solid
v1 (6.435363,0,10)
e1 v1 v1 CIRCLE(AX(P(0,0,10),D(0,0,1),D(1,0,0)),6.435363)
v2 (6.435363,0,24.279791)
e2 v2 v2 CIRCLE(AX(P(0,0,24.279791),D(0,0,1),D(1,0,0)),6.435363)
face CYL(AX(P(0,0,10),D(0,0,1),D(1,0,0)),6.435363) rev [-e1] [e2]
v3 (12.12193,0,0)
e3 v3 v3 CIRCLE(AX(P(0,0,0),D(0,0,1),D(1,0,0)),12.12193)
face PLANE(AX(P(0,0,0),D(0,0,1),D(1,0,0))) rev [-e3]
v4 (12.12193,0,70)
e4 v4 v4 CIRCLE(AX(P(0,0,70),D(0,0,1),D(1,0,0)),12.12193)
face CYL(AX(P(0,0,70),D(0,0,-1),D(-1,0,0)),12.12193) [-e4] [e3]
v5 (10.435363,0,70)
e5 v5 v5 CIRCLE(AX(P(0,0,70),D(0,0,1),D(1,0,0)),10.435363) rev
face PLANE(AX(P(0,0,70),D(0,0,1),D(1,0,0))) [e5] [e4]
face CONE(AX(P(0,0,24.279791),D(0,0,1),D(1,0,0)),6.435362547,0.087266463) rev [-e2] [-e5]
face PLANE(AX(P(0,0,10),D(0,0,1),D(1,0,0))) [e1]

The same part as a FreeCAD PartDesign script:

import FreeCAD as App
import Part
import Sketcher


def edges_at(feature, points):
    """Names of the edges that pass closest to the given points."""
    edges = feature.Shape.Edges
    near = lambda p: min(range(len(edges)), key=lambda i: edges[i].distToShape(Part.Vertex(*p))[0])
    return sorted({f"Edge{near(p) + 1}" for p in points})

doc = App.newDocument("Part")
body = doc.addObject("PartDesign::Body", "Body")

# Sketch on XY plane
sketch1 = doc.addObject("Sketcher::SketchObject", "Sketch")
body.addObject(sketch1)
sketch1.AttachmentSupport = (doc.XY_Plane, [""])
sketch1.MapMode = "FlatFace"
sketch1.addGeometry(Part.Circle(App.Vector(0, 0, 0), App.Vector(0, 0, 1), 12), False)
sketch1.addConstraint([
    Sketcher.Constraint("Coincident", 0, 3, -1, 1),
    Sketcher.Constraint("Diameter", 0, 24.243859),
])
pad1 = doc.addObject("PartDesign::Pad", "Pad")
body.addObject(pad1)
pad1.Profile = sketch1
pad1.Length = 70

# Sketch on XY plane
sketch2 = doc.addObject("Sketcher::SketchObject", "Sketch001")
body.addObject(sketch2)
sketch2.AttachmentSupport = (doc.XY_Plane, [""])
sketch2.MapMode = "FlatFace"
sketch2.AttachmentOffset = App.Placement(App.Vector(0, 0, 70), App.Rotation())
sketch2.addGeometry(Part.Circle(App.Vector(0, 0, 0), App.Vector(0, 0, 1), 6), False)
sketch2.addConstraint([
    Sketcher.Constraint("Coincident", 0, 3, -1, 1),
    Sketcher.Constraint("Diameter", 0, 12.870725),
])
pocket1 = doc.addObject("PartDesign::Pocket", "Pocket")
body.addObject(pocket1)
pocket1.Profile = sketch2
pocket1.Length = 60
doc.recompute()

chamfer = doc.addObject("PartDesign::Chamfer", "Chamfer")
body.addObject(chamfer)
chamfer.Base = (pocket1, edges_at(pocket1, [(-6.435, 0, 70)]))
chamfer.ChamferType = "Two distances"
chamfer.Size = 4
chamfer.Size2 = 45.720209

doc.recompute()
